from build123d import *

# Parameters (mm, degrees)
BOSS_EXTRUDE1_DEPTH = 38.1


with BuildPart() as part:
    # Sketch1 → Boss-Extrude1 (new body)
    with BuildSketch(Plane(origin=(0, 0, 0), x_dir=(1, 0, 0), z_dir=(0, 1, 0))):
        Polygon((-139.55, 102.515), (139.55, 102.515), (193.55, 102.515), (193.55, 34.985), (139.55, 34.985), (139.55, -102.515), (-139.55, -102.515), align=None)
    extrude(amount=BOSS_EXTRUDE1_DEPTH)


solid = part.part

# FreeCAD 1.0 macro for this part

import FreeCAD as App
import Part
import Sketcher

V = App.Vector
Q = App.Units.Quantity


def add_polygon(sketch, points):
    """Adds a closed chain of lines whose ends are joined by coincident constraints."""
    first, n = sketch.GeometryCount, len(points)
    for a, b in zip(points, points[1:] + points[:1]):
        sketch.addGeometry(Part.LineSegment(App.Vector(*a, 0), App.Vector(*b, 0)), False)
    for i in range(n):
        sketch.addConstraint(Sketcher.Constraint("Coincident", first + i, 2, first + (i + 1) % n, 1))

doc = App.newDocument("Part")
body = doc.addObject("PartDesign::Body", "Body")

sketch1 = body.newObject("Sketcher::SketchObject", "Sketch")
sketch1.AttachmentSupport = (doc.getObject("XZ_Plane"), [""])
sketch1.MapMode = "FlatFace"
add_polygon(sketch1, [(194, -103), (-140, -103), (-140, 103), (140, 103), (140, -35), (194, -35)])
sketch1.addConstraint(Sketcher.Constraint("Horizontal", 0))
sketch1.addConstraint(Sketcher.Constraint("Vertical", 1))
sketch1.addConstraint(Sketcher.Constraint("Horizontal", 2))
sketch1.addConstraint(Sketcher.Constraint("Vertical", 3))
sketch1.addConstraint(Sketcher.Constraint("Horizontal", 4))
sketch1.addConstraint(Sketcher.Constraint("Vertical", 5))
sketch1.addConstraint(Sketcher.Constraint("Symmetric", 0, 2, 2, 2, -1, 1))
sketch1.addConstraint(Sketcher.Constraint("DistanceX", 4, 1, 4, 2, Q("54 mm")))
sketch1.addConstraint(Sketcher.Constraint("DistanceX", 0, 2, 0, 1, Q("333.1 mm")))
sketch1.addConstraint(Sketcher.Constraint("DistanceY", 3, 2, 3, 1, Q("137.5 mm")))
sketch1.addConstraint(Sketcher.Constraint("DistanceY", 1, 1, 1, 2, Q("205.03 mm")))
pad1 = body.newObject("PartDesign::Pad", "Pad")
pad1.Profile = sketch1
pad1.Length = 38.1
pad1.Reversed = True

doc.recompute()
